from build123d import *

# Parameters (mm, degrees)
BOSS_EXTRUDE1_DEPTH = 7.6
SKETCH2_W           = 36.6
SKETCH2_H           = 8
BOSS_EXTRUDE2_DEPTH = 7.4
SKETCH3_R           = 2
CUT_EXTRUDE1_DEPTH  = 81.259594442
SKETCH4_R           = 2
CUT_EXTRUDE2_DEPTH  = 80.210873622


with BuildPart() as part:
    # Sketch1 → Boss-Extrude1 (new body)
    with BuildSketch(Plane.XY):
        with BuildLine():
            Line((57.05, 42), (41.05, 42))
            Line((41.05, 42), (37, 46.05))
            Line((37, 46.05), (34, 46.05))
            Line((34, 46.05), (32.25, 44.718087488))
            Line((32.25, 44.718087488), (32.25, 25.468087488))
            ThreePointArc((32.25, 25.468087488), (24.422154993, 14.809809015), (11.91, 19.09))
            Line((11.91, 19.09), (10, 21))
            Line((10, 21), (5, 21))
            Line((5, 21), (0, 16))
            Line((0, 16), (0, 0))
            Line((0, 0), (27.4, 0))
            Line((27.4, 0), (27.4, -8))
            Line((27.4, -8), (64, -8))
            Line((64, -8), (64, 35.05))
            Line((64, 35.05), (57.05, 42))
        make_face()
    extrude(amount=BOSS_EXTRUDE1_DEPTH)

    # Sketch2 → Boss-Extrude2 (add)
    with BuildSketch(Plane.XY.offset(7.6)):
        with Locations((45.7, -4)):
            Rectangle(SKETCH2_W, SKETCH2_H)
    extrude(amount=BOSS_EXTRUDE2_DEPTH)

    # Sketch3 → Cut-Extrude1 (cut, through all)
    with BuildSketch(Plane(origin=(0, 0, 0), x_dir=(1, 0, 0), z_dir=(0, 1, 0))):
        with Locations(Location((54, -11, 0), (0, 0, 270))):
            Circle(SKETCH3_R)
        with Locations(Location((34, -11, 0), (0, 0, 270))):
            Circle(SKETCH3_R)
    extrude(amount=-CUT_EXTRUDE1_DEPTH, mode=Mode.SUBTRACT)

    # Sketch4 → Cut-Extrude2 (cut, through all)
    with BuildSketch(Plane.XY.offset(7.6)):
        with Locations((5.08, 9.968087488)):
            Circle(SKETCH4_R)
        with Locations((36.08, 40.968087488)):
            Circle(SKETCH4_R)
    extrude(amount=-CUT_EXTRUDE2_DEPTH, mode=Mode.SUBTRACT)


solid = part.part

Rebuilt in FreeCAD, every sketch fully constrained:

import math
import FreeCAD as App
import Part
import Sketcher
Q = App.Units.Quantity


def add_polygon(sketch, points):
    """Adds a closed chain of lines whose ends are joined by coincident constraints."""
    first, n = sketch.GeometryCount, len(points)
    for a, b in zip(points, points[1:] + points[:1]):
        sketch.addGeometry(Part.LineSegment(App.Vector(*a, 0), App.Vector(*b, 0)), False)
    for i in range(n):
        sketch.addConstraint(Sketcher.Constraint("Coincident", first + i, 2, first + (i + 1) % n, 1))

doc = App.newDocument("Part")
body = doc.addObject("PartDesign::Body", "Body")

# Sketch on XY plane
sketch1 = body.newObject("Sketcher::SketchObject", "Sketch")
sketch1.AttachmentSupport = (doc.getObject("XY_Plane"), [""])
sketch1.MapMode = "FlatFace"
sketch1.addGeometry([
    Part.LineSegment(App.Vector(57, 42, 0), App.Vector(41, 42, 0)),  # 0
    Part.LineSegment(App.Vector(41, 42, 0), App.Vector(37, 46, 0)),  # 1
    Part.LineSegment(App.Vector(37, 46, 0), App.Vector(34, 46, 0)),  # 2
    Part.LineSegment(App.Vector(34, 46, 0), App.Vector(32.2, 44.7, 0)),  # 3
    Part.LineSegment(App.Vector(32.2, 44.7, 0), App.Vector(32.2, 25.5, 0)),  # 4
    Part.ArcOfCircle(Part.Circle(App.Vector(21.1, 25.5, 0), App.Vector(0, 0, 1), 11.2), math.radians(-145), math.radians(0)),  # 5
    Part.LineSegment(App.Vector(11.9, 19.1, 0), App.Vector(10, 21, 0)),  # 6
    Part.LineSegment(App.Vector(10, 21, 0), App.Vector(5, 21, 0)),  # 7
    Part.LineSegment(App.Vector(5, 21, 0), App.Vector(0, 16, 0)),  # 8
    Part.LineSegment(App.Vector(0, 16, 0), App.Vector(0, 0, 0)),  # 9
    Part.LineSegment(App.Vector(0, 0, 0), App.Vector(27.4, 0, 0)),  # 10
    Part.LineSegment(App.Vector(27.4, 0, 0), App.Vector(27.4, -8, 0)),  # 11
    Part.LineSegment(App.Vector(27.4, -8, 0), App.Vector(64, -8, 0)),  # 12
    Part.LineSegment(App.Vector(64, -8, 0), App.Vector(64, 35, 0)),  # 13
    Part.LineSegment(App.Vector(64, 35, 0), App.Vector(57, 42, 0)),  # 14
], False)
sketch1.addConstraint([
    Sketcher.Constraint("Coincident", 0, 2, 1, 1),
    Sketcher.Constraint("Coincident", 1, 2, 2, 1),
    Sketcher.Constraint("Coincident", 2, 2, 3, 1),
    Sketcher.Constraint("Coincident", 3, 2, 4, 1),
    Sketcher.Constraint("Tangent", 4, 2, 5, 2),
    Sketcher.Constraint("Coincident", 5, 1, 6, 1),
    Sketcher.Constraint("Coincident", 6, 2, 7, 1),
    Sketcher.Constraint("Coincident", 7, 2, 8, 1),
    Sketcher.Constraint("Coincident", 8, 2, 9, 1),
    Sketcher.Constraint("Coincident", 9, 2, 10, 1),
    Sketcher.Constraint("Coincident", 10, 2, 11, 1),
    Sketcher.Constraint("Coincident", 11, 2, 12, 1),
    Sketcher.Constraint("Coincident", 12, 2, 13, 1),
    Sketcher.Constraint("Coincident", 13, 2, 14, 1),
    Sketcher.Constraint("Coincident", 14, 2, 0, 1),
    Sketcher.Constraint("Horizontal", 0),
    Sketcher.Constraint("Horizontal", 2),
    Sketcher.Constraint("Vertical", 4),
    Sketcher.Constraint("Horizontal", 7),
    Sketcher.Constraint("Vertical", 9),
    Sketcher.Constraint("Horizontal", 10),
    Sketcher.Constraint("Vertical", 11),
    Sketcher.Constraint("Horizontal", 12),
    Sketcher.Constraint("Vertical", 13),
    Sketcher.Constraint("Coincident", 9, 2, -1, 1),
    Sketcher.Constraint("Parallel", 1, 6),
    Sketcher.Constraint("Perpendicular", 6, 8),
    Sketcher.Constraint("Perpendicular", 8, 14),
    Sketcher.Constraint("Equal", 0, 9),
    Sketcher.Constraint("DistanceX", 0, 2, 0, 1, 16.0),
    Sketcher.Constraint("DistanceX", 2, 2, 2, 1, 3.0),
    Sketcher.Constraint("DistanceX", 7, 2, 7, 1, 5.0),
    Sketcher.Constraint("DistanceY", 11, 2, 11, 1, 8.0),
    Sketcher.Constraint("Angle", 1, Q("135 deg")),
    Sketcher.Constraint("Radius", 5, 11.17),
    Sketcher.Constraint("DistanceX", 10, 1, 10, 2, 27.4),
    Sketcher.Constraint("DistanceX", 12, 1, 12, 2, 36.6),
    Sketcher.Constraint("DistanceY", -1, 1, 0, 2, 42.0),
    Sketcher.Constraint("DistanceX", -1, 1, 1, 2, 37.0),
    Sketcher.Constraint("DistanceX", -1, 1, 6, 2, 10.0),
    Sketcher.Constraint("DistanceY", 4, 2, 4, 1, 19.25),
    Sketcher.Constraint("DistanceY", 13, 1, 13, 2, 43.05),
    Sketcher.Constraint("DistanceX", 3, 2, 0, 2, 8.8),
    Sketcher.Constraint("DistanceX", -1, 1, 5, 1, 11.91),
])
pad1 = body.newObject("PartDesign::Pad", "Pad")
pad1.Profile = sketch1
pad1.Length = 7.6

# Sketch on XY plane
sketch2 = body.newObject("Sketcher::SketchObject", "Sketch001")
sketch2.AttachmentSupport = (doc.getObject("XY_Plane"), [""])
sketch2.MapMode = "FlatFace"
sketch2.AttachmentOffset = App.Placement(App.Vector(0, 0, 7.6), App.Rotation())
add_polygon(sketch2, [(27, 0), (27, -8), (64, -8), (64, 0)])  # lines 0-3
sketch2.addConstraint([
    Sketcher.Constraint("Vertical", 0),
    Sketcher.Constraint("Horizontal", 1),
    Sketcher.Constraint("Vertical", 2),
    Sketcher.Constraint("Horizontal", 3),
    Sketcher.Constraint("PointOnObject", 2, 2, -1),
    Sketcher.Constraint("DistanceY", 0, 2, 0, 1, 8.0),
    Sketcher.Constraint("DistanceX", 1, 1, 1, 2, 36.6),
    Sketcher.Constraint("DistanceX", -1, 1, 1, 2, 64.0),
])
pad2 = body.newObject("PartDesign::Pad", "Pad001")
pad2.Profile = sketch2
pad2.Length = 7.4

# Sketch on XZ plane
sketch3 = body.newObject("Sketcher::SketchObject", "Sketch002")
sketch3.AttachmentSupport = (doc.getObject("XZ_Plane"), [""])
sketch3.MapMode = "FlatFace"
sketch3.addGeometry([
    Part.Circle(App.Vector(54, 11, 0), App.Vector(0, 0, 1), 2),
    Part.Circle(App.Vector(34, 11, 0), App.Vector(0, 0, 1), 2),
], False)
sketch3.addConstraint([
    Sketcher.Constraint("Equal", 0, 1),
    Sketcher.Constraint("Horizontal", 0, 3, 1, 3),
    Sketcher.Constraint("Diameter", 0, 4.0),
    Sketcher.Constraint("DistanceX", -1, 1, 0, 3, 54.0),
    Sketcher.Constraint("DistanceY", -1, 1, 0, 3, 11.0),
    Sketcher.Constraint("DistanceX", -1, 1, 1, 3, 34.0),
])
pocket1 = body.newObject("PartDesign::Pocket", "Pocket")
pocket1.Profile = sketch3
pocket1.Type = "ThroughAll"
pocket1.Reversed = True

# Sketch on XY plane
sketch4 = body.newObject("Sketcher::SketchObject", "Sketch003")
sketch4.AttachmentSupport = (doc.getObject("XY_Plane"), [""])
sketch4.MapMode = "FlatFace"
sketch4.AttachmentOffset = App.Placement(App.Vector(0, 0, 7.6), App.Rotation())
sketch4.addGeometry([
    Part.Circle(App.Vector(5.1, 10, 0), App.Vector(0, 0, 1), 2),
    Part.Circle(App.Vector(36.1, 41, 0), App.Vector(0, 0, 1), 2),
], False)
sketch4.addConstraint([
    Sketcher.Constraint("Equal", 0, 1),
    Sketcher.Constraint("Diameter", 0, 4.0),
    Sketcher.Constraint("DistanceX", 0, 3, 1, 3, 31.0),
    Sketcher.Constraint("DistanceY", 0, 3, 1, 3, 31.0),
    Sketcher.Constraint("DistanceX", -1, 1, 0, 3, 5.08),
    Sketcher.Constraint("DistanceY", -1, 1, 0, 3, 9.968087),
])
pocket2 = body.newObject("PartDesign::Pocket", "Pocket001")
pocket2.Profile = sketch4
pocket2.Type = "ThroughAll"

doc.recompute()
